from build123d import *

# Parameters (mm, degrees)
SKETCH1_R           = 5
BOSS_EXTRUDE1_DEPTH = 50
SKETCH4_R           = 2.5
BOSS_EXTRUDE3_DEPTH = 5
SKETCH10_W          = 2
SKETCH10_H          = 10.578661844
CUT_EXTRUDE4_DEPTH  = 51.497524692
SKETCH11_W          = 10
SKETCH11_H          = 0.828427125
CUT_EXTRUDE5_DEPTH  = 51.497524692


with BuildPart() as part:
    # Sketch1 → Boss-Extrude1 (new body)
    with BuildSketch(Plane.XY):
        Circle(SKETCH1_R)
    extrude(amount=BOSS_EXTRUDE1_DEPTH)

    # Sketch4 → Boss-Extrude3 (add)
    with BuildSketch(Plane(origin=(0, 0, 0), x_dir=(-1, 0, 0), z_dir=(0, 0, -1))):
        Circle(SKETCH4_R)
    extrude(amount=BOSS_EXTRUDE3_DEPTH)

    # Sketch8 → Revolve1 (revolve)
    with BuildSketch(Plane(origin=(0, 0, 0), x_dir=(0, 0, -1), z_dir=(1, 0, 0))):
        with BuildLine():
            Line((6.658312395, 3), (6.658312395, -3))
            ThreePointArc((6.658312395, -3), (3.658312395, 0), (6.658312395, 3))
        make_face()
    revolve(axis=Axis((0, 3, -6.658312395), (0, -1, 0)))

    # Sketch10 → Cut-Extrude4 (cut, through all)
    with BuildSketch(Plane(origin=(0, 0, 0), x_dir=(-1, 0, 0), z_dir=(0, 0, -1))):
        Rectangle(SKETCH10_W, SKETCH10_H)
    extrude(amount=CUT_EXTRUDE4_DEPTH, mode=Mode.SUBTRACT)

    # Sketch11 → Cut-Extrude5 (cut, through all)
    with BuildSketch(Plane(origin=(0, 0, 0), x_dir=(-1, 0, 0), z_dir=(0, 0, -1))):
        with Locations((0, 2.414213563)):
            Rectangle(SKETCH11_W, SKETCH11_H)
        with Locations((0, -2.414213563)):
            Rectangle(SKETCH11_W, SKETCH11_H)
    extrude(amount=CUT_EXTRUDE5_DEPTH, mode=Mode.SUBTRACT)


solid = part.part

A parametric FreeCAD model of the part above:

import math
import FreeCAD as App
import Part
import Sketcher
Q = App.Units.Quantity

doc = App.newDocument("Part")
body = doc.addObject("PartDesign::Body", "Body")

# Sketch on XY plane
sketch1 = body.newObject("Sketcher::SketchObject", "Sketch")
sketch1.AttachmentSupport = (doc.getObject("XY_Plane"), [""])
sketch1.MapMode = "FlatFace"
sketch1.addGeometry(Part.Circle(App.Vector(0, 0, 0), App.Vector(0, 0, 1), 5), False)
sketch1.addConstraint([
    Sketcher.Constraint("Coincident", 0, 3, -1, 1),
    Sketcher.Constraint("Diameter", 0, Q("10 mm")),
])
pad1 = body.newObject("PartDesign::Pad", "Pad")
pad1.Profile = sketch1
pad1.Length = 50

# Sketch on XY plane
sketch2 = body.newObject("Sketcher::SketchObject", "Sketch001")
sketch2.AttachmentSupport = (doc.getObject("XY_Plane"), [""])
sketch2.MapMode = "FlatFace"
sketch2.addGeometry(Part.Circle(App.Vector(0, 0, 0), App.Vector(0, 0, 1), 2.5), False)
sketch2.addConstraint([
    Sketcher.Constraint("Coincident", 0, 3, -1, 1),
    Sketcher.Constraint("Diameter", 0, Q("5 mm")),
])
pad2 = body.newObject("PartDesign::Pad", "Pad001")
pad2.Profile = sketch2
pad2.Length = 5
pad2.Reversed = True

# Sketch on YZ plane
sketch3 = body.newObject("Sketcher::SketchObject", "Sketch002")
sketch3.AttachmentSupport = (doc.getObject("YZ_Plane"), [""])
sketch3.MapMode = "FlatFace"
sketch3.addGeometry([
    Part.LineSegment(App.Vector(-3, -6.7, 0), App.Vector(3, -6.7, 0)),
    Part.ArcOfCircle(Part.Circle(App.Vector(0, -6.7, 0), App.Vector(0, 0, 1), 3), math.radians(0), math.radians(180)),
], False)
sketch3.addGeometry(Part.LineSegment(App.Vector(3, -6.7, 0), App.Vector(-3, -6.7, 0)), True)  # axis
sketch3.addConstraint([
    Sketcher.Constraint("Coincident", 0, 1, 1, 2),
    Sketcher.Constraint("Coincident", 1, 1, 0, 2),
    Sketcher.Constraint("Horizontal", 0),
    Sketcher.Constraint("Horizontal", 2),
    Sketcher.Constraint("Coincident", 2, 1, 1, 1),
    Sketcher.Constraint("PointOnObject", 1, 3, -2),
    Sketcher.Constraint("Horizontal", 1, 3, 0, 1),
    Sketcher.Constraint("Equal", 0, 2),
    Sketcher.Constraint("Radius", 1, Q("3 mm")),
    Sketcher.Constraint("DistanceY", 1, 3, -1, 1, Q("6.658312 mm")),
])
revolution = body.newObject("PartDesign::Revolution", "Revolution")
revolution.Profile = sketch3
revolution.ReferenceAxis = (sketch3, ["Axis0"])
revolution.Angle = 360

# Sketch on XY plane
sketch4 = body.newObject("Sketcher::SketchObject", "Sketch003")
sketch4.AttachmentSupport = (doc.getObject("XY_Plane"), [""])
sketch4.MapMode = "FlatFace"
sketch4.addGeometry([
    Part.LineSegment(App.Vector(1, 5.3, 0), App.Vector(1, -5.3, 0)),
    Part.LineSegment(App.Vector(1, -5.3, 0), App.Vector(-1, -5.3, 0)),
    Part.LineSegment(App.Vector(-1, -5.3, 0), App.Vector(-1, 5.3, 0)),
    Part.LineSegment(App.Vector(-1, 5.3, 0), App.Vector(1, 5.3, 0)),
], False)
sketch4.addConstraint([
    Sketcher.Constraint("Coincident", 0, 2, 1, 1),
    Sketcher.Constraint("Coincident", 1, 2, 2, 1),
    Sketcher.Constraint("Coincident", 2, 2, 3, 1),
    Sketcher.Constraint("Coincident", 3, 2, 0, 1),
    Sketcher.Constraint("Vertical", 0),
    Sketcher.Constraint("Horizontal", 1),
    Sketcher.Constraint("Vertical", 2),
    Sketcher.Constraint("Horizontal", 3),
    Sketcher.Constraint("Symmetric", 0, 2, 2, 2, -1, 1),
    Sketcher.Constraint("DistanceX", 1, 2, 1, 1, Q("2 mm")),
    Sketcher.Constraint("DistanceY", 0, 2, 0, 1, Q("10.578662 mm")),
])
pocket1 = body.newObject("PartDesign::Pocket", "Pocket")
pocket1.Profile = sketch4
pocket1.Type = "ThroughAll"

# Sketch on XY plane
sketch5 = body.newObject("Sketcher::SketchObject", "Sketch004")
sketch5.AttachmentSupport = (doc.getObject("XY_Plane"), [""])
sketch5.MapMode = "FlatFace"
sketch5.addGeometry([
    Part.LineSegment(App.Vector(5, 2.8, 0), App.Vector(5, 2, 0)),  # 0
    Part.LineSegment(App.Vector(5, 2, 0), App.Vector(-5, 2, 0)),  # 1
    Part.LineSegment(App.Vector(-5, 2, 0), App.Vector(-5, 2.8, 0)),  # 2
    Part.LineSegment(App.Vector(-5, 2.8, 0), App.Vector(5, 2.8, 0)),  # 3
    Part.LineSegment(App.Vector(5, -2, 0), App.Vector(5, -2.8, 0)),  # 4
    Part.LineSegment(App.Vector(5, -2.8, 0), App.Vector(-5, -2.8, 0)),  # 5
    Part.LineSegment(App.Vector(-5, -2.8, 0), App.Vector(-5, -2, 0)),  # 6
    Part.LineSegment(App.Vector(-5, -2, 0), App.Vector(5, -2, 0)),  # 7
], False)
sketch5.addConstraint([
    Sketcher.Constraint("Coincident", 0, 2, 1, 1),
    Sketcher.Constraint("Coincident", 1, 2, 2, 1),
    Sketcher.Constraint("Coincident", 2, 2, 3, 1),
    Sketcher.Constraint("Coincident", 3, 2, 0, 1),
    Sketcher.Constraint("Coincident", 4, 2, 5, 1),
    Sketcher.Constraint("Coincident", 5, 2, 6, 1),
    Sketcher.Constraint("Coincident", 6, 2, 7, 1),
    Sketcher.Constraint("Coincident", 7, 2, 4, 1),
    Sketcher.Constraint("Vertical", 0),
    Sketcher.Constraint("Horizontal", 1),
    Sketcher.Constraint("Vertical", 2),
    Sketcher.Constraint("Horizontal", 3),
    Sketcher.Constraint("Vertical", 4),
    Sketcher.Constraint("Horizontal", 5),
    Sketcher.Constraint("Vertical", 6),
    Sketcher.Constraint("Horizontal", 7),
    Sketcher.Constraint("Symmetric", 2, 2, 4, 2, -1, 1),
    Sketcher.Constraint("Symmetric", 0, 2, 6, 2, -1, 1),
    Sketcher.Constraint("Vertical", 3, 2, 4, 2),
    Sketcher.Constraint("DistanceX", 1, 2, 1, 1, Q("10 mm")),
    Sketcher.Constraint("DistanceY", -1, 1, 0, 2, Q("2 mm")),
    Sketcher.Constraint("DistanceY", 0, 2, 0, 1, Q("0.828427 mm")),
])
pocket2 = body.newObject("PartDesign::Pocket", "Pocket001")
pocket2.Profile = sketch5
pocket2.Type = "ThroughAll"

doc.recompute()
